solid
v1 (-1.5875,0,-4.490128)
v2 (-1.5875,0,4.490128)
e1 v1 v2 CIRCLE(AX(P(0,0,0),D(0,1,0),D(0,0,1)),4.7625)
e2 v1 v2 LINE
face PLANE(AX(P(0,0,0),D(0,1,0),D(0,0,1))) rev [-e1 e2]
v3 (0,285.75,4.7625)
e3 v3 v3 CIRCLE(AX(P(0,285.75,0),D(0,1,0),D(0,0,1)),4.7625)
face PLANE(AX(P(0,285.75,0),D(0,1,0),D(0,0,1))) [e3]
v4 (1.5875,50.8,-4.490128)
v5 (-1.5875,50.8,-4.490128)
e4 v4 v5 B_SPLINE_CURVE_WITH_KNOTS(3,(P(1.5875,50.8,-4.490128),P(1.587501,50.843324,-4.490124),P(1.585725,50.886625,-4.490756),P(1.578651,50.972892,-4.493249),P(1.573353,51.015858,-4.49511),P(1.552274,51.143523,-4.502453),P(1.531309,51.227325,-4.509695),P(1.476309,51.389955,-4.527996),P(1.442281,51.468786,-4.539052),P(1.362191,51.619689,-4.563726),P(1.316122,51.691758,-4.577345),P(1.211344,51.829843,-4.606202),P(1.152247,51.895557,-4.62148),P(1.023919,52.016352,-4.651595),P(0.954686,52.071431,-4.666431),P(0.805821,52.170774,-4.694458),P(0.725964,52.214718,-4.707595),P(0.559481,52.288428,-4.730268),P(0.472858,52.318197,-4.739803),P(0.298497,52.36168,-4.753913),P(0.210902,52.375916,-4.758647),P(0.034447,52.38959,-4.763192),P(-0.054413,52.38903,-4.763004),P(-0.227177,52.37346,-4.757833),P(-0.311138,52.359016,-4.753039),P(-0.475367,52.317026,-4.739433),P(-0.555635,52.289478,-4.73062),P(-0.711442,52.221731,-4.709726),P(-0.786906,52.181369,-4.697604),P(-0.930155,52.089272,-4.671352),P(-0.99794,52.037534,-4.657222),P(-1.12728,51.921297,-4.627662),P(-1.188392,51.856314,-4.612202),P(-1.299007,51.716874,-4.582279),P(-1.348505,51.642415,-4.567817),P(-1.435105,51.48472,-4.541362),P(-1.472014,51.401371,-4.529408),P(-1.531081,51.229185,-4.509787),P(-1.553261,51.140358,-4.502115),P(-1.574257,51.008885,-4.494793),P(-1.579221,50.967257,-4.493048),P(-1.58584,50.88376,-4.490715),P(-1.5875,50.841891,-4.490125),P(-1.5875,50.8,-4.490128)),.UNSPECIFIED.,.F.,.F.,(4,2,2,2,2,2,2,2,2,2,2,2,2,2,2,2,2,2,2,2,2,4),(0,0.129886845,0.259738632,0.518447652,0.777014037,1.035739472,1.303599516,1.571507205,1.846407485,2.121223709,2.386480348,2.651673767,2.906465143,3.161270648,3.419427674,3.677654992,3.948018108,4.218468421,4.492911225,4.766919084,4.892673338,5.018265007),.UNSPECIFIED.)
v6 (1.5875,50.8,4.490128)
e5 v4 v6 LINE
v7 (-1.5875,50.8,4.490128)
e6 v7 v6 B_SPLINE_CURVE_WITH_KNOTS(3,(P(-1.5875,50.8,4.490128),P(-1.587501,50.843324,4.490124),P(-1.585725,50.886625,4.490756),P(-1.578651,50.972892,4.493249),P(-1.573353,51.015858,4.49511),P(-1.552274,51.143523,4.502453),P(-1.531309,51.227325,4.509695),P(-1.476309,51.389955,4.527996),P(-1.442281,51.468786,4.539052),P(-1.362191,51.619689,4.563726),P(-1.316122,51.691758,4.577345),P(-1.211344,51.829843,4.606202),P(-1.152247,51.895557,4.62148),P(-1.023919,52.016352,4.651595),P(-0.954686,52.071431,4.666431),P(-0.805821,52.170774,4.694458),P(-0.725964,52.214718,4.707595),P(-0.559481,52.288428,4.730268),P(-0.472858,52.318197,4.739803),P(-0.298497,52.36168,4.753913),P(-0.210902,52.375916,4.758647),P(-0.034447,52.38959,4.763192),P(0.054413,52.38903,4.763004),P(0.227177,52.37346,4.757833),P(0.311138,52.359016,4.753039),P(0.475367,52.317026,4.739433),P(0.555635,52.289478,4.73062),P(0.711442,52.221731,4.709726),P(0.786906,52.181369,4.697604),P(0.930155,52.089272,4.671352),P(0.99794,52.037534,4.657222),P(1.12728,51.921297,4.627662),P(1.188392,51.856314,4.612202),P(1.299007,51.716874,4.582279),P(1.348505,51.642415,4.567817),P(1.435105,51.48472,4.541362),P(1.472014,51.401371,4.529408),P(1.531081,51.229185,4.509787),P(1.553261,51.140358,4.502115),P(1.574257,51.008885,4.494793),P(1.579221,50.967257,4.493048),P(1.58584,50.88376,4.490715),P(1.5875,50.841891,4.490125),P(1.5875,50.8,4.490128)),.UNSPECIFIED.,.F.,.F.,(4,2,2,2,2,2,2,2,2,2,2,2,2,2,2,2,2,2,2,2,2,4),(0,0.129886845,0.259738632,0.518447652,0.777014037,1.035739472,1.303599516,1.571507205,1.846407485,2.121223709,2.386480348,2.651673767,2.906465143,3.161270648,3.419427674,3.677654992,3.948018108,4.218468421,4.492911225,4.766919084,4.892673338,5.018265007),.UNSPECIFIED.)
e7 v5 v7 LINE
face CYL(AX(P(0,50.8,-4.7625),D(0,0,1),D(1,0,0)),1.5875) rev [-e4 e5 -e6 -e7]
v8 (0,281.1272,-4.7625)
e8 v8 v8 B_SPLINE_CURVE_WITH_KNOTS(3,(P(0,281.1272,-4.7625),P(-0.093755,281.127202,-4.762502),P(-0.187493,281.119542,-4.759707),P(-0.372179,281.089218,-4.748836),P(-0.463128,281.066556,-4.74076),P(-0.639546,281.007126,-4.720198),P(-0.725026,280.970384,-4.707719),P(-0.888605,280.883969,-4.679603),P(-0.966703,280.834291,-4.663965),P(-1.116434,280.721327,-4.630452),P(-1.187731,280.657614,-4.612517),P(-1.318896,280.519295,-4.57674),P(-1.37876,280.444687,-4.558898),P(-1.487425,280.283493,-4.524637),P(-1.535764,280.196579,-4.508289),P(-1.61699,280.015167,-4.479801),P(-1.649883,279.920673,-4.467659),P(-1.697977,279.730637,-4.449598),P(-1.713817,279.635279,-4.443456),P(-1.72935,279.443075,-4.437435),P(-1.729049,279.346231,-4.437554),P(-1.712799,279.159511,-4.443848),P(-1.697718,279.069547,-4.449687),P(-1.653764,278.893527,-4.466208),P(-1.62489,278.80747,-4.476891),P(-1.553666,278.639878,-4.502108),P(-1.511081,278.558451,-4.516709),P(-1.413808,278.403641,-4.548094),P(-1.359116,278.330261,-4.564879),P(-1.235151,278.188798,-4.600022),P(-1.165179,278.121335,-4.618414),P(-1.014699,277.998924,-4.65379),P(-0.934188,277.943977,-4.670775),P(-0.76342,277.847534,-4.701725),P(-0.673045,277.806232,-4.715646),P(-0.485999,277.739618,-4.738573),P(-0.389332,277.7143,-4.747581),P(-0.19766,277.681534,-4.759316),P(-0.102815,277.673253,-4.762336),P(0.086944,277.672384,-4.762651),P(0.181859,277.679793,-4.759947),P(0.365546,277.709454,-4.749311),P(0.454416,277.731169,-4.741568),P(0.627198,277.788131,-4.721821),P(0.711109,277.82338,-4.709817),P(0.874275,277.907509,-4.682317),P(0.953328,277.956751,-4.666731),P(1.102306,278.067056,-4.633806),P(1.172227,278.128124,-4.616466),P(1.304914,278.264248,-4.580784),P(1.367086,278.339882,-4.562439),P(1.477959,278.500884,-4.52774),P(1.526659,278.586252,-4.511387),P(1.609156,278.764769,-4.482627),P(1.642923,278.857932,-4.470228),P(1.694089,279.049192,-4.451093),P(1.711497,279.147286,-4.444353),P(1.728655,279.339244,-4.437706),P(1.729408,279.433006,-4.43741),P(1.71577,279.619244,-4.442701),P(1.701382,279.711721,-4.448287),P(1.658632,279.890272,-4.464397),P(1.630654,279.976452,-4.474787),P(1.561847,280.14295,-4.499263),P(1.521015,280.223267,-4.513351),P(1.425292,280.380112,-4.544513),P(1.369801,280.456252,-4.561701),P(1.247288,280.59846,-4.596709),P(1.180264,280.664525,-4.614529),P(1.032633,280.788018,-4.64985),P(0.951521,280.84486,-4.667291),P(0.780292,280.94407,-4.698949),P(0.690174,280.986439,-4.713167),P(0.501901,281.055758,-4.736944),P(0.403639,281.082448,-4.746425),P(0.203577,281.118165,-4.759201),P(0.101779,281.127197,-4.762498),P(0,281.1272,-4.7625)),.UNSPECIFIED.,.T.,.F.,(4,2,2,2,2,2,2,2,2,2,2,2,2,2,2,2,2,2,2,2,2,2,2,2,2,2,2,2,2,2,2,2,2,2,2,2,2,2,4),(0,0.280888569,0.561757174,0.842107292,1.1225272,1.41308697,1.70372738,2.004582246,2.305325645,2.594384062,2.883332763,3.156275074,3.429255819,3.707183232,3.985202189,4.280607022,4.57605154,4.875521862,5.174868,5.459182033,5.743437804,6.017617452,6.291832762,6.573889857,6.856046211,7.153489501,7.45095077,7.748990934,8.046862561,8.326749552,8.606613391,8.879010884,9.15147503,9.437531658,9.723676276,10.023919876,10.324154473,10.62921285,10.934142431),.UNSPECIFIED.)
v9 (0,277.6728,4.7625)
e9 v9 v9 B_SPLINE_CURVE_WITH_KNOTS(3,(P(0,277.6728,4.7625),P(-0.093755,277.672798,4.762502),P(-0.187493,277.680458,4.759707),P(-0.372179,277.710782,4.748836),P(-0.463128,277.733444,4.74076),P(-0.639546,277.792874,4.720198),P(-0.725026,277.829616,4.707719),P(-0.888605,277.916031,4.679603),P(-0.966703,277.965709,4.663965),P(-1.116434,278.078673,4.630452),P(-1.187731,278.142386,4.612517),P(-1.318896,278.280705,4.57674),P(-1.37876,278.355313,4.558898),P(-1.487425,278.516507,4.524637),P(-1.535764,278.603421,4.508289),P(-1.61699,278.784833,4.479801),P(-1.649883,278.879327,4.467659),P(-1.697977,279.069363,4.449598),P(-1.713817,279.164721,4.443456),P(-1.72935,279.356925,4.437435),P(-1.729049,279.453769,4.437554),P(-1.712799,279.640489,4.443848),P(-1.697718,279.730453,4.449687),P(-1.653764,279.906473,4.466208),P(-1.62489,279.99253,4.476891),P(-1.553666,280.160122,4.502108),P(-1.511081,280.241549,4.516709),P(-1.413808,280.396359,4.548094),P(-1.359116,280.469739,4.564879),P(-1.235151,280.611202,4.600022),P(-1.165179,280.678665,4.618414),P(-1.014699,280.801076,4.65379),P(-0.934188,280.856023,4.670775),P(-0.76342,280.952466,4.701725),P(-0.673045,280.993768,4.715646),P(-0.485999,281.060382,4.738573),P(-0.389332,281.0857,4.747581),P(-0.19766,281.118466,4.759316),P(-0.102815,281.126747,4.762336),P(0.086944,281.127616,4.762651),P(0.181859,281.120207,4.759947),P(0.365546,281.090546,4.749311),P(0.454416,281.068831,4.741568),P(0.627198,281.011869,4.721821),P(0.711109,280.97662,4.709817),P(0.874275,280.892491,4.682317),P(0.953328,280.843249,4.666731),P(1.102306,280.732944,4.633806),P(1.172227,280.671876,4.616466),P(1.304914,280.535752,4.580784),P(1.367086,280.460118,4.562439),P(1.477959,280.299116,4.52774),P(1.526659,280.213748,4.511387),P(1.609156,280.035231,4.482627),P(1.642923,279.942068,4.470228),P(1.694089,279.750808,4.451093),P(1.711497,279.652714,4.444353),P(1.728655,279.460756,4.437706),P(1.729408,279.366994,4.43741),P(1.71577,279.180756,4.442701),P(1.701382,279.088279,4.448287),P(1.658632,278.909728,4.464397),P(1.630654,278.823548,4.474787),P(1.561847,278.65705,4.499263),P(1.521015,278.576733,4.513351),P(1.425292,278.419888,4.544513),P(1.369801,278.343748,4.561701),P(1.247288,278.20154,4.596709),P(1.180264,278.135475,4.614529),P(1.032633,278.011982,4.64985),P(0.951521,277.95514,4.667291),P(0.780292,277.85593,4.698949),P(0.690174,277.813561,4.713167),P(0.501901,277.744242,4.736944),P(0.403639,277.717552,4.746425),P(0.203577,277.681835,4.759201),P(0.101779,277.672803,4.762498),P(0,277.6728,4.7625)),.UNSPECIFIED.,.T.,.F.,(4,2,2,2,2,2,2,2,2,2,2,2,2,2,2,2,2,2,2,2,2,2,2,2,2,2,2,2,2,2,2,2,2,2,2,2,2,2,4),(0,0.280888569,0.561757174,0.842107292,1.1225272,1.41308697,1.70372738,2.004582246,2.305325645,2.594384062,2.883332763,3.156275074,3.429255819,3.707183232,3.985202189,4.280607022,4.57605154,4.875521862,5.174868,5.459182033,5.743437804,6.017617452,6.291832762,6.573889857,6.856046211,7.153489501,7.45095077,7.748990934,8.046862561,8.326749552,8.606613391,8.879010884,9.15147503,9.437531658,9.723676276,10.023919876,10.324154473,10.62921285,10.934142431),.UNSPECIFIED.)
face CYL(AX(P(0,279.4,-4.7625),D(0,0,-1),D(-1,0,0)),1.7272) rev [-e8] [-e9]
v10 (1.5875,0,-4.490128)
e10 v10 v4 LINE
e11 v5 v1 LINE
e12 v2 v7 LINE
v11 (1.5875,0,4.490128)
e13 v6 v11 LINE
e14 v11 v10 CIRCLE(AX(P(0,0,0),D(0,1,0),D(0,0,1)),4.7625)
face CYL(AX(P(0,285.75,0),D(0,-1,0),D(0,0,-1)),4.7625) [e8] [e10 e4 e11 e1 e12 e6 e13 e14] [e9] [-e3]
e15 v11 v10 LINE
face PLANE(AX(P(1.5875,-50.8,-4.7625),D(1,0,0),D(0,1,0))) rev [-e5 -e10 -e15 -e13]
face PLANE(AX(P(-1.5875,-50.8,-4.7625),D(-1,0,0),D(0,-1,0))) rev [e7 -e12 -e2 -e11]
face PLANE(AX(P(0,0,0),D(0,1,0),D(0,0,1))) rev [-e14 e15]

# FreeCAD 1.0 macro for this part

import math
import FreeCAD as App
import Part
import Sketcher

V = App.Vector
Q = App.Units.Quantity

doc = App.newDocument("Part")
body = doc.addObject("PartDesign::Body", "Body")

# Sketch on XZ plane
sketch1 = doc.addObject("Sketcher::SketchObject", "Sketch")
body.addObject(sketch1)
sketch1.AttachmentSupport = (doc.XZ_Plane, [""])
sketch1.MapMode = "FlatFace"
sketch1.addGeometry(Part.Circle(V(0, 0, 0), V(0, 0, 1), 4.8), False)
sketch1.addConstraint([
    Sketcher.Constraint("Coincident", 0, 3, -1, 1),
    Sketcher.Constraint("Diameter", 0, Q("0.375 in")),
])
pad1 = doc.addObject("PartDesign::Pad", "Pad")
body.addObject(pad1)
pad1.Profile = sketch1
pad1.Length = Q("11.25 in")
pad1.Reversed = True

# Sketch on XY plane
sketch2 = doc.addObject("Sketcher::SketchObject", "Sketch001")
body.addObject(sketch2)
sketch2.AttachmentSupport = (doc.XY_Plane, [""])
sketch2.MapMode = "FlatFace"
sketch2.addGeometry([
    Part.LineSegment(V(-1.6, 50.8, 0), V(-1.6, -50.8, 0)),
    Part.ArcOfCircle(Part.Circle(V(0, -50.8, 0), V(0, 0, 1), 1.6), math.radians(180), math.radians(360)),
    Part.LineSegment(V(1.6, -50.8, 0), V(1.6, 50.8, 0)),
    Part.ArcOfCircle(Part.Circle(V(0, 50.8, 0), V(0, 0, 1), 1.6), math.radians(0), math.radians(180)),
], False)
sketch2.addConstraint([
    Sketcher.Constraint("Tangent", 0, 2, 1, 1),
    Sketcher.Constraint("Tangent", 1, 2, 2, 1),
    Sketcher.Constraint("Tangent", 2, 2, 3, 1),
    Sketcher.Constraint("Tangent", 3, 2, 0, 1),
    Sketcher.Constraint("Vertical", 0),
    Sketcher.Constraint("Vertical", 2),
    Sketcher.Constraint("Symmetric", 1, 3, 3, 3, -1, 1),
    Sketcher.Constraint("DistanceY", 0, 2, 0, 1, Q("4 in")),
    Sketcher.Constraint("Radius", 1, Q("0.0625 in")),
])
pocket1 = doc.addObject("PartDesign::Pocket", "Pocket")
body.addObject(pocket1)
pocket1.Profile = sketch2
pocket1.Type = "ThroughAll"
pocket1.Midplane = True

# Sketch on XY plane
sketch3 = doc.addObject("Sketcher::SketchObject", "Sketch002")
body.addObject(sketch3)
sketch3.AttachmentSupport = (doc.XY_Plane, [""])
sketch3.MapMode = "FlatFace"
sketch3.AttachmentOffset = App.Placement(V(0, 0, -0.1875 * 25.4), App.Rotation())
sketch3.addGeometry(Part.Circle(V(0, 279.4, 0), V(0, 0, 1), 1.7), False)
sketch3.addConstraint([
    Sketcher.Constraint("PointOnObject", 0, 3, -2),
    Sketcher.Constraint("Diameter", 0, Q("0.136 in")),
    Sketcher.Constraint("DistanceY", -1, 1, 0, 3, Q("11 in")),
])
doc.recompute()
hole = doc.addObject("PartDesign::Hole", "Hole")
body.addObject(hole)
hole.Profile = sketch3
hole.ThreadType = "None"
hole.Diameter = Q("0.136 in")
hole.DepthType = "ThroughAll"
hole.Reversed = True

doc.recompute()
